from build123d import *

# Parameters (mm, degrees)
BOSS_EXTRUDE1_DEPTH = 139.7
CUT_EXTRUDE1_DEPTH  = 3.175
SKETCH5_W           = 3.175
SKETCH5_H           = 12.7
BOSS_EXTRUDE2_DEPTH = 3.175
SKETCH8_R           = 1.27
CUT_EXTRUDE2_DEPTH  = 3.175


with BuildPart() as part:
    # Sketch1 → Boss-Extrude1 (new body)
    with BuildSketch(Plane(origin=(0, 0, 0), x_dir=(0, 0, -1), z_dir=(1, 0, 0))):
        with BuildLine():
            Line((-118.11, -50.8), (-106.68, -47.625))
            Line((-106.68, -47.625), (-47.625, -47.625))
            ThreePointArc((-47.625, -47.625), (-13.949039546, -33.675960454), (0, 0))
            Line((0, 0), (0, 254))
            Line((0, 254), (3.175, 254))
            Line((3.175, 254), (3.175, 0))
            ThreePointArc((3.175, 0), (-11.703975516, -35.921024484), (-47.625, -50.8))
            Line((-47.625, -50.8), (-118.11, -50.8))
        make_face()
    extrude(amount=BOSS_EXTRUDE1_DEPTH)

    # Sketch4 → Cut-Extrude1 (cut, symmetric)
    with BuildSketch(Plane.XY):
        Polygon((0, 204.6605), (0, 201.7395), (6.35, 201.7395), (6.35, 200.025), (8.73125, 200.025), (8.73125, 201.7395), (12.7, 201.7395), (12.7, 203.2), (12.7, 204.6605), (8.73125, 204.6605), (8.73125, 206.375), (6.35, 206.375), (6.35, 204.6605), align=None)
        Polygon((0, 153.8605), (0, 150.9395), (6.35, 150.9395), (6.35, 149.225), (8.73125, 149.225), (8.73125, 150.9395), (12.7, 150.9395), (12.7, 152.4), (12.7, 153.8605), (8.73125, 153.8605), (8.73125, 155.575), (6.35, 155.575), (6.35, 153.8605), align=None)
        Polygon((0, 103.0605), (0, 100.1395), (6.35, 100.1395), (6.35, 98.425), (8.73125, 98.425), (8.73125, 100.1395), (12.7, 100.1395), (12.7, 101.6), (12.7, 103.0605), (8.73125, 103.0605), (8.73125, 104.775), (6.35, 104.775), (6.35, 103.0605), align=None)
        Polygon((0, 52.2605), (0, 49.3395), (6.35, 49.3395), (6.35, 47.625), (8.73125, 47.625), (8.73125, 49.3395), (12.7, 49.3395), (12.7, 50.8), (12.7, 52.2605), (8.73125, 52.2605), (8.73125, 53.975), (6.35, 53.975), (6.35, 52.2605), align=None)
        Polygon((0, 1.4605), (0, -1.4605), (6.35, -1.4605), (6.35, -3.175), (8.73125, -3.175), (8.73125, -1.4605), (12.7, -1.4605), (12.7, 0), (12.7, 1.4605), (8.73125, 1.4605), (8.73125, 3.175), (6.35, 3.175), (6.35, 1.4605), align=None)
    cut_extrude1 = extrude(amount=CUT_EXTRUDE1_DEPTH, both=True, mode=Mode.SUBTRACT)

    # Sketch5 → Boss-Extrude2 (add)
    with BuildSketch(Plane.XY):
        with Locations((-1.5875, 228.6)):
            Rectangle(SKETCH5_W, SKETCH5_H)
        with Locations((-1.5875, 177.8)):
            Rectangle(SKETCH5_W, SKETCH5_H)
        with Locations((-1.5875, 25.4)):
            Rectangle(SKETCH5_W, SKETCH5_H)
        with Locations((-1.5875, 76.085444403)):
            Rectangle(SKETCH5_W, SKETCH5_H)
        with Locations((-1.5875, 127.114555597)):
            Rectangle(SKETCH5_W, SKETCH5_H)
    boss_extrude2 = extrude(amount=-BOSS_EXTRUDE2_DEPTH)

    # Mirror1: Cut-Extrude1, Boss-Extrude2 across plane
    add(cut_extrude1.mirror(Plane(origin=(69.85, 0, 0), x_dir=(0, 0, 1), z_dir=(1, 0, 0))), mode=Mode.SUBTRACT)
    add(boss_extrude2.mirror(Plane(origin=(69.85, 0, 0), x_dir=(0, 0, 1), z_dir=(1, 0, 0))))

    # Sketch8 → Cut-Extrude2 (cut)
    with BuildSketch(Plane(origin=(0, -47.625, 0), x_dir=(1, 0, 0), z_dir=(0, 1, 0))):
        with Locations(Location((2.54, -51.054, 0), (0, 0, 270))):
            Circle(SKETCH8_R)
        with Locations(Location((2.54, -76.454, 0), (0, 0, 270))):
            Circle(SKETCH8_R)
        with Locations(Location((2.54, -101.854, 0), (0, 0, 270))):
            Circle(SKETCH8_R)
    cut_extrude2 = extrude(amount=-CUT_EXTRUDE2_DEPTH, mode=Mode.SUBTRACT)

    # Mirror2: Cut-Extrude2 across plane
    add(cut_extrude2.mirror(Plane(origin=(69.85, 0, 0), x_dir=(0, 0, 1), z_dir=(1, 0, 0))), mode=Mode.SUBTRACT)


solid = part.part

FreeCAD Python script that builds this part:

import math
import FreeCAD as App
import Part
import Sketcher
from FreeCAD import Vector
Q = App.Units.Quantity

doc = App.newDocument("Part")
params = doc.addObject("Spreadsheet::Sheet", "Params")
for row, (alias, value) in enumerate([
    ("sketch1_radius", "2 in"),
    ("sketch1_width", "10 in"),
    ("sketch1_radius2", "1.875 in"),
    ("sketch1_height", "2.775 in"),
    ("pad1_length", "5.5 in"),
    ("sketch2_width", "0.25 in"),
    ("sketch2_width2", "0.09375 in"),
    ("sketch2_height", "0.115 in"),
    ("pocket1_length", "0.25 in"),
    ("sketch3_height", "0.5 in"),
    ("sketch3_width", "0.125 in"),
    ("pad2_length", "0.125 in"),
    ("sketch4_diameter", "0.1 in"),
    ("pocket2_length", "0.125 in"),
], start=1):
    params.set(f"A{row}", alias)
    params.set(f"B{row}", "=" + value)
    params.setAlias(f"B{row}", alias)

body = doc.addObject("PartDesign::Body", "Body")

# Sketch on YZ plane
sketch1 = body.newObject("Sketcher::SketchObject", "Sketch")
sketch1.AttachmentSupport = (doc.getObject("YZ_Plane"), [""])
sketch1.MapMode = "FlatFace"
sketch1.addGeometry(Part.LineSegment(Vector(-47.625, 106.68, 0), Vector(-50.8, 118.11, 0)), False)
sketch1.addGeometry(Part.LineSegment(Vector(-50.8, 118.11, 0), Vector(-50.8, 47.625, 0)), False)
sketch1.addGeometry(Part.ArcOfCircle(Part.Circle(Vector(0, 47.625, 0), Vector(0, 0, 1), 50.8), math.radians(-180), math.radians(-90)), False)
sketch1.addGeometry(Part.LineSegment(Vector(0, -3.175, 0), Vector(254, -3.175, 0)), False)
sketch1.addGeometry(Part.LineSegment(Vector(254, -3.175, 0), Vector(254, 0, 0)), False)
sketch1.addGeometry(Part.LineSegment(Vector(254, 0, 0), Vector(0, 0, 0)), False)
sketch1.addGeometry(Part.ArcOfCircle(Part.Circle(Vector(0, 47.625, 0), Vector(0, 0, 1), 47.625), math.radians(180), math.radians(270)), False)
sketch1.addGeometry(Part.LineSegment(Vector(-47.625, 47.625, 0), Vector(-47.625, 106.68, 0)), False)
sketch1.addConstraint(Sketcher.Constraint("Coincident", 0, 2, 1, 1))
sketch1.addConstraint(Sketcher.Constraint("Tangent", 1, 2, 2, 1))
sketch1.addConstraint(Sketcher.Constraint("Tangent", 2, 2, 3, 1))
sketch1.addConstraint(Sketcher.Constraint("Coincident", 3, 2, 4, 1))
sketch1.addConstraint(Sketcher.Constraint("Coincident", 4, 2, 5, 1))
sketch1.addConstraint(Sketcher.Constraint("Tangent", 5, 2, 6, 2))
sketch1.addConstraint(Sketcher.Constraint("Tangent", 6, 1, 7, 1))
sketch1.addConstraint(Sketcher.Constraint("Coincident", 7, 2, 0, 1))
sketch1.addConstraint(Sketcher.Constraint("Vertical", 1))
sketch1.addConstraint(Sketcher.Constraint("Horizontal", 3))
sketch1.addConstraint(Sketcher.Constraint("Vertical", 4))
sketch1.addConstraint(Sketcher.Constraint("Horizontal", 5))
sketch1.addConstraint(Sketcher.Constraint("Vertical", 7))
sketch1.addConstraint(Sketcher.Constraint("Coincident", 5, 2, -1, 1))
sketch1.addConstraint(Sketcher.Constraint("Coincident", 6, 3, 2, 3))
sketch1.addConstraint(Sketcher.Constraint("Radius", 2, Q("2 in")))
sketch1.addConstraint(Sketcher.Constraint("DistanceX", 3, 1, 3, 2, Q("10 in")))
sketch1.addConstraint(Sketcher.Constraint("Radius", 6, Q("1.875 in")))
sketch1.addConstraint(Sketcher.Constraint("DistanceY", -1, 1, 7, 2, Q("4.2 in")))
sketch1.addConstraint(Sketcher.Constraint("DistanceY", 1, 2, 1, 1, Q("2.775 in")))
sketch1.setExpression("Constraints[15]", "Params.sketch1_radius")
sketch1.setExpression("Constraints[16]", "Params.sketch1_width")
sketch1.setExpression("Constraints[17]", "Params.sketch1_radius2")
sketch1.setExpression("Constraints[19]", "Params.sketch1_height")
pad1 = body.newObject("PartDesign::Pad", "Pad")
pad1.Profile = sketch1
pad1.setExpression("Length", "Params.pad1_length")

# Sketch on XY plane
sketch2 = body.newObject("Sketcher::SketchObject", "Sketch001")
sketch2.AttachmentSupport = (doc.getObject("XY_Plane"), [""])
sketch2.MapMode = "FlatFace"
sketch2.addGeometry(Part.LineSegment(Vector(0, 204.6605, 0), Vector(0, 201.7395, 0)), False)
sketch2.addGeometry(Part.LineSegment(Vector(0, 201.7395, 0), Vector(6.35, 201.7395, 0)), False)
sketch2.addGeometry(Part.LineSegment(Vector(6.35, 201.7395, 0), Vector(6.35, 200.025, 0)), False)
sketch2.addGeometry(Part.LineSegment(Vector(6.35, 200.025, 0), Vector(8.73125, 200.025, 0)), False)
sketch2.addGeometry(Part.LineSegment(Vector(8.73125, 200.025, 0), Vector(8.73125, 201.7395, 0)), False)
sketch2.addGeometry(Part.LineSegment(Vector(8.73125, 201.7395, 0), Vector(12.7, 201.7395, 0)), False)
sketch2.addGeometry(Part.LineSegment(Vector(12.7, 201.7395, 0), Vector(12.7, 204.6605, 0)), False)
sketch2.addGeometry(Part.LineSegment(Vector(12.7, 204.6605, 0), Vector(8.73125, 204.6605, 0)), False)
sketch2.addGeometry(Part.LineSegment(Vector(8.73125, 204.6605, 0), Vector(8.73125, 206.375, 0)), False)
sketch2.addGeometry(Part.LineSegment(Vector(8.73125, 206.375, 0), Vector(6.35, 206.375, 0)), False)
sketch2.addGeometry(Part.LineSegment(Vector(6.35, 206.375, 0), Vector(6.35, 204.6605, 0)), False)
sketch2.addGeometry(Part.LineSegment(Vector(6.35, 204.6605, 0), Vector(0, 204.6605, 0)), False)
sketch2.addGeometry(Part.LineSegment(Vector(0, 153.8605, 0), Vector(0, 150.9395, 0)), False)
sketch2.addGeometry(Part.LineSegment(Vector(0, 150.9395, 0), Vector(6.35, 150.9395, 0)), False)
sketch2.addGeometry(Part.LineSegment(Vector(6.35, 150.9395, 0), Vector(6.35, 149.225, 0)), False)
sketch2.addGeometry(Part.LineSegment(Vector(6.35, 149.225, 0), Vector(8.73125, 149.225, 0)), False)
sketch2.addGeometry(Part.LineSegment(Vector(8.73125, 149.225, 0), Vector(8.73125, 150.9395, 0)), False)
sketch2.addGeometry(Part.LineSegment(Vector(8.73125, 150.9395, 0), Vector(12.7, 150.9395, 0)), False)
sketch2.addGeometry(Part.LineSegment(Vector(12.7, 150.9395, 0), Vector(12.7, 153.8605, 0)), False)
sketch2.addGeometry(Part.LineSegment(Vector(12.7, 153.8605, 0), Vector(8.73125, 153.8605, 0)), False)
sketch2.addGeometry(Part.LineSegment(Vector(8.73125, 153.8605, 0), Vector(8.73125, 155.575, 0)), False)
sketch2.addGeometry(Part.LineSegment(Vector(8.73125, 155.575, 0), Vector(6.35, 155.575, 0)), False)
sketch2.addGeometry(Part.LineSegment(Vector(6.35, 155.575, 0), Vector(6.35, 153.8605, 0)), False)
sketch2.addGeometry(Part.LineSegment(Vector(6.35, 153.8605, 0), Vector(0, 153.8605, 0)), False)
sketch2.addGeometry(Part.LineSegment(Vector(0, 103.0605, 0), Vector(0, 100.1395, 0)), False)
sketch2.addGeometry(Part.LineSegment(Vector(0, 100.1395, 0), Vector(6.35, 100.1395, 0)), False)
sketch2.addGeometry(Part.LineSegment(Vector(6.35, 100.1395, 0), Vector(6.35, 98.425, 0)), False)
sketch2.addGeometry(Part.LineSegment(Vector(6.35, 98.425, 0), Vector(8.73125, 98.425, 0)), False)
sketch2.addGeometry(Part.LineSegment(Vector(8.73125, 98.425, 0), Vector(8.73125, 100.1395, 0)), False)
sketch2.addGeometry(Part.LineSegment(Vector(8.73125, 100.1395, 0), Vector(12.7, 100.1395, 0)), False)
sketch2.addGeometry(Part.LineSegment(Vector(12.7, 100.1395, 0), Vector(12.7, 103.0605, 0)), False)
sketch2.addGeometry(Part.LineSegment(Vector(12.7, 103.0605, 0), Vector(8.73125, 103.0605, 0)), False)
sketch2.addGeometry(Part.LineSegment(Vector(8.73125, 103.0605, 0), Vector(8.73125, 104.775, 0)), False)
sketch2.addGeometry(Part.LineSegment(Vector(8.73125, 104.775, 0), Vector(6.35, 104.775, 0)), False)
sketch2.addGeometry(Part.LineSegment(Vector(6.35, 104.775, 0), Vector(6.35, 103.0605, 0)), False)
sketch2.addGeometry(Part.LineSegment(Vector(6.35, 103.0605, 0), Vector(0, 103.0605, 0)), False)
sketch2.addGeometry(Part.LineSegment(Vector(0, 52.2605, 0), Vector(0, 49.3395, 0)), False)
sketch2.addGeometry(Part.LineSegment(Vector(0, 49.3395, 0), Vector(6.35, 49.3395, 0)), False)
sketch2.addGeometry(Part.LineSegment(Vector(6.35, 49.3395, 0), Vector(6.35, 47.625, 0)), False)
sketch2.addGeometry(Part.LineSegment(Vector(6.35, 47.625, 0), Vector(8.73125, 47.625, 0)), False)
sketch2.addGeometry(Part.LineSegment(Vector(8.73125, 47.625, 0), Vector(8.73125, 49.3395, 0)), False)
sketch2.addGeometry(Part.LineSegment(Vector(8.73125, 49.3395, 0), Vector(12.7, 49.3395, 0)), False)
sketch2.addGeometry(Part.LineSegment(Vector(12.7, 49.3395, 0), Vector(12.7, 52.2605, 0)), False)
sketch2.addGeometry(Part.LineSegment(Vector(12.7, 52.2605, 0), Vector(8.73125, 52.2605, 0)), False)
sketch2.addGeometry(Part.LineSegment(Vector(8.73125, 52.2605, 0), Vector(8.73125, 53.975, 0)), False)
sketch2.addGeometry(Part.LineSegment(Vector(8.73125, 53.975, 0), Vector(6.35, 53.975, 0)), False)
sketch2.addGeometry(Part.LineSegment(Vector(6.35, 53.975, 0), Vector(6.35, 52.2605, 0)), False)
sketch2.addGeometry(Part.LineSegment(Vector(6.35, 52.2605, 0), Vector(0, 52.2605, 0)), False)
sketch2.addGeometry(Part.LineSegment(Vector(0, 1.4605, 0), Vector(0, -1.4605, 0)), False)
sketch2.addGeometry(Part.LineSegment(Vector(0, -1.4605, 0), Vector(6.35, -1.4605, 0)), False)
sketch2.addGeometry(Part.LineSegment(Vector(6.35, -1.4605, 0), Vector(6.35, -3.175, 0)), False)
sketch2.addGeometry(Part.LineSegment(Vector(6.35, -3.175, 0), Vector(8.73125, -3.175, 0)), False)
sketch2.addGeometry(Part.LineSegment(Vector(8.73125, -3.175, 0), Vector(8.73125, -1.4605, 0)), False)
sketch2.addGeometry(Part.LineSegment(Vector(8.73125, -1.4605, 0), Vector(12.7, -1.4605, 0)), False)
sketch2.addGeometry(Part.LineSegment(Vector(12.7, -1.4605, 0), Vector(12.7, 1.4605, 0)), False)
sketch2.addGeometry(Part.LineSegment(Vector(12.7, 1.4605, 0), Vector(8.73125, 1.4605, 0)), False)
sketch2.addGeometry(Part.LineSegment(Vector(8.73125, 1.4605, 0), Vector(8.73125, 3.175, 0)), False)
sketch2.addGeometry(Part.LineSegment(Vector(8.73125, 3.175, 0), Vector(6.35, 3.175, 0)), False)
sketch2.addGeometry(Part.LineSegment(Vector(6.35, 3.175, 0), Vector(6.35, 1.4605, 0)), False)
sketch2.addGeometry(Part.LineSegment(Vector(6.35, 1.4605, 0), Vector(0, 1.4605, 0)), False)
sketch2.addConstraint(Sketcher.Constraint("Coincident", 0, 2, 1, 1))
sketch2.addConstraint(Sketcher.Constraint("Coincident", 1, 2, 2, 1))
sketch2.addConstraint(Sketcher.Constraint("Coincident", 2, 2, 3, 1))
sketch2.addConstraint(Sketcher.Constraint("Coincident", 3, 2, 4, 1))
sketch2.addConstraint(Sketcher.Constraint("Coincident", 4, 2, 5, 1))
sketch2.addConstraint(Sketcher.Constraint("Coincident", 5, 2, 6, 1))
sketch2.addConstraint(Sketcher.Constraint("Coincident", 6, 2, 7, 1))
sketch2.addConstraint(Sketcher.Constraint("Coincident", 7, 2, 8, 1))
sketch2.addConstraint(Sketcher.Constraint("Coincident", 8, 2, 9, 1))
sketch2.addConstraint(Sketcher.Constraint("Coincident", 9, 2, 10, 1))
sketch2.addConstraint(Sketcher.Constraint("Coincident", 10, 2, 11, 1))
sketch2.addConstraint(Sketcher.Constraint("Coincident", 11, 2, 0, 1))
sketch2.addConstraint(Sketcher.Constraint("Coincident", 12, 2, 13, 1))
sketch2.addConstraint(Sketcher.Constraint("Coincident", 13, 2, 14, 1))
sketch2.addConstraint(Sketcher.Constraint("Coincident", 14, 2, 15, 1))
sketch2.addConstraint(Sketcher.Constraint("Coincident", 15, 2, 16, 1))
sketch2.addConstraint(Sketcher.Constraint("Coincident", 16, 2, 17, 1))
sketch2.addConstraint(Sketcher.Constraint("Coincident", 17, 2, 18, 1))
sketch2.addConstraint(Sketcher.Constraint("Coincident", 18, 2, 19, 1))
sketch2.addConstraint(Sketcher.Constraint("Coincident", 19, 2, 20, 1))
sketch2.addConstraint(Sketcher.Constraint("Coincident", 20, 2, 21, 1))
sketch2.addConstraint(Sketcher.Constraint("Coincident", 21, 2, 22, 1))
sketch2.addConstraint(Sketcher.Constraint("Coincident", 22, 2, 23, 1))
sketch2.addConstraint(Sketcher.Constraint("Coincident", 23, 2, 12, 1))
sketch2.addConstraint(Sketcher.Constraint("Coincident", 24, 2, 25, 1))
sketch2.addConstraint(Sketcher.Constraint("Coincident", 25, 2, 26, 1))
sketch2.addConstraint(Sketcher.Constraint("Coincident", 26, 2, 27, 1))
sketch2.addConstraint(Sketcher.Constraint("Coincident", 27, 2, 28, 1))
sketch2.addConstraint(Sketcher.Constraint("Coincident", 28, 2, 29, 1))
sketch2.addConstraint(Sketcher.Constraint("Coincident", 29, 2, 30, 1))
sketch2.addConstraint(Sketcher.Constraint("Coincident", 30, 2, 31, 1))
sketch2.addConstraint(Sketcher.Constraint("Coincident", 31, 2, 32, 1))
sketch2.addConstraint(Sketcher.Constraint("Coincident", 32, 2, 33, 1))
sketch2.addConstraint(Sketcher.Constraint("Coincident", 33, 2, 34, 1))
sketch2.addConstraint(Sketcher.Constraint("Coincident", 34, 2, 35, 1))
sketch2.addConstraint(Sketcher.Constraint("Coincident", 35, 2, 24, 1))
sketch2.addConstraint(Sketcher.Constraint("Coincident", 36, 2, 37, 1))
sketch2.addConstraint(Sketcher.Constraint("Coincident", 37, 2, 38, 1))
sketch2.addConstraint(Sketcher.Constraint("Coincident", 38, 2, 39, 1))
sketch2.addConstraint(Sketcher.Constraint("Coincident", 39, 2, 40, 1))
sketch2.addConstraint(Sketcher.Constraint("Coincident", 40, 2, 41, 1))
sketch2.addConstraint(Sketcher.Constraint("Coincident", 41, 2, 42, 1))
sketch2.addConstraint(Sketcher.Constraint("Coincident", 42, 2, 43, 1))
sketch2.addConstraint(Sketcher.Constraint("Coincident", 43, 2, 44, 1))
sketch2.addConstraint(Sketcher.Constraint("Coincident", 44, 2, 45, 1))
sketch2.addConstraint(Sketcher.Constraint("Coincident", 45, 2, 46, 1))
sketch2.addConstraint(Sketcher.Constraint("Coincident", 46, 2, 47, 1))
sketch2.addConstraint(Sketcher.Constraint("Coincident", 47, 2, 36, 1))
sketch2.addConstraint(Sketcher.Constraint("Coincident", 48, 2, 49, 1))
sketch2.addConstraint(Sketcher.Constraint("Coincident", 49, 2, 50, 1))
sketch2.addConstraint(Sketcher.Constraint("Coincident", 50, 2, 51, 1))
sketch2.addConstraint(Sketcher.Constraint("Coincident", 51, 2, 52, 1))
sketch2.addConstraint(Sketcher.Constraint("Coincident", 52, 2, 53, 1))
sketch2.addConstraint(Sketcher.Constraint("Coincident", 53, 2, 54, 1))
sketch2.addConstraint(Sketcher.Constraint("Coincident", 54, 2, 55, 1))
sketch2.addConstraint(Sketcher.Constraint("Coincident", 55, 2, 56, 1))
sketch2.addConstraint(Sketcher.Constraint("Coincident", 56, 2, 57, 1))
sketch2.addConstraint(Sketcher.Constraint("Coincident", 57, 2, 58, 1))
sketch2.addConstraint(Sketcher.Constraint("Coincident", 58, 2, 59, 1))
sketch2.addConstraint(Sketcher.Constraint("Coincident", 59, 2, 48, 1))
sketch2.addConstraint(Sketcher.Constraint("Vertical", 0))
sketch2.addConstraint(Sketcher.Constraint("Horizontal", 1))
sketch2.addConstraint(Sketcher.Constraint("Vertical", 2))
sketch2.addConstraint(Sketcher.Constraint("Horizontal", 3))
sketch2.addConstraint(Sketcher.Constraint("Vertical", 4))
sketch2.addConstraint(Sketcher.Constraint("Horizontal", 5))
sketch2.addConstraint(Sketcher.Constraint("Vertical", 6))
sketch2.addConstraint(Sketcher.Constraint("Horizontal", 7))
sketch2.addConstraint(Sketcher.Constraint("Vertical", 8))
sketch2.addConstraint(Sketcher.Constraint("Horizontal", 9))
sketch2.addConstraint(Sketcher.Constraint("Vertical", 10))
sketch2.addConstraint(Sketcher.Constraint("Horizontal", 11))
sketch2.addConstraint(Sketcher.Constraint("Vertical", 12))
sketch2.addConstraint(Sketcher.Constraint("Horizontal", 13))
sketch2.addConstraint(Sketcher.Constraint("Vertical", 14))
sketch2.addConstraint(Sketcher.Constraint("Horizontal", 15))
sketch2.addConstraint(Sketcher.Constraint("Vertical", 16))
sketch2.addConstraint(Sketcher.Constraint("Horizontal", 17))
sketch2.addConstraint(Sketcher.Constraint("Vertical", 18))
sketch2.addConstraint(Sketcher.Constraint("Horizontal", 19))
sketch2.addConstraint(Sketcher.Constraint("Vertical", 20))
sketch2.addConstraint(Sketcher.Constraint("Horizontal", 21))
sketch2.addConstraint(Sketcher.Constraint("Vertical", 22))
sketch2.addConstraint(Sketcher.Constraint("Horizontal", 23))
sketch2.addConstraint(Sketcher.Constraint("Vertical", 24))
sketch2.addConstraint(Sketcher.Constraint("Horizontal", 25))
sketch2.addConstraint(Sketcher.Constraint("Vertical", 26))
sketch2.addConstraint(Sketcher.Constraint("Horizontal", 27))
sketch2.addConstraint(Sketcher.Constraint("Vertical", 28))
sketch2.addConstraint(Sketcher.Constraint("Horizontal", 29))
sketch2.addConstraint(Sketcher.Constraint("Vertical", 30))
sketch2.addConstraint(Sketcher.Constraint("Horizontal", 31))
sketch2.addConstraint(Sketcher.Constraint("Vertical", 32))
sketch2.addConstraint(Sketcher.Constraint("Horizontal", 33))
sketch2.addConstraint(Sketcher.Constraint("Vertical", 34))
sketch2.addConstraint(Sketcher.Constraint("Horizontal", 35))
sketch2.addConstraint(Sketcher.Constraint("Vertical", 36))
sketch2.addConstraint(Sketcher.Constraint("Horizontal", 37))
sketch2.addConstraint(Sketcher.Constraint("Vertical", 38))
sketch2.addConstraint(Sketcher.Constraint("Horizontal", 39))
sketch2.addConstraint(Sketcher.Constraint("Vertical", 40))
sketch2.addConstraint(Sketcher.Constraint("Horizontal", 41))
sketch2.addConstraint(Sketcher.Constraint("Vertical", 42))
sketch2.addConstraint(Sketcher.Constraint("Horizontal", 43))
sketch2.addConstraint(Sketcher.Constraint("Vertical", 44))
sketch2.addConstraint(Sketcher.Constraint("Horizontal", 45))
sketch2.addConstraint(Sketcher.Constraint("Vertical", 46))
sketch2.addConstraint(Sketcher.Constraint("Horizontal", 47))
sketch2.addConstraint(Sketcher.Constraint("Vertical", 48))
sketch2.addConstraint(Sketcher.Constraint("Horizontal", 49))
sketch2.addConstraint(Sketcher.Constraint("Vertical", 50))
sketch2.addConstraint(Sketcher.Constraint("Horizontal", 51))
sketch2.addConstraint(Sketcher.Constraint("Vertical", 52))
sketch2.addConstraint(Sketcher.Constraint("Horizontal", 53))
sketch2.addConstraint(Sketcher.Constraint("Vertical", 54))
sketch2.addConstraint(Sketcher.Constraint("Horizontal", 55))
sketch2.addConstraint(Sketcher.Constraint("Vertical", 56))
sketch2.addConstraint(Sketcher.Constraint("Horizontal", 57))
sketch2.addConstraint(Sketcher.Constraint("Vertical", 58))
sketch2.addConstraint(Sketcher.Constraint("Horizontal", 59))
sketch2.addConstraint(Sketcher.Constraint("Symmetric", 48, 2, 59, 2, -1, 1))
sketch2.addConstraint(Sketcher.Constraint("Symmetric", 52, 2, 55, 2, -1))
sketch2.addConstraint(Sketcher.Constraint("Symmetric", 50, 2, 57, 2, -1))
sketch2.addConstraint(Sketcher.Constraint("PointOnObject", 0, 2, -2))
sketch2.addConstraint(Sketcher.Constraint("PointOnObject", 12, 2, -2))
sketch2.addConstraint(Sketcher.Constraint("PointOnObject", 24, 2, -2))
sketch2.addConstraint(Sketcher.Constraint("PointOnObject", 36, 2, -2))
sketch2.addConstraint(Sketcher.Constraint("Horizontal", 1, 2, 4, 2))
sketch2.addConstraint(Sketcher.Constraint("Horizontal", 7, 2, 10, 2))
sketch2.addConstraint(Sketcher.Constraint("Horizontal", 13, 2, 16, 2))
sketch2.addConstraint(Sketcher.Constraint("Horizontal", 19, 2, 22, 2))
sketch2.addConstraint(Sketcher.Constraint("Horizontal", 25, 2, 28, 2))
sketch2.addConstraint(Sketcher.Constraint("Horizontal", 31, 2, 34, 2))
sketch2.addConstraint(Sketcher.Constraint("Horizontal", 37, 2, 40, 2))
sketch2.addConstraint(Sketcher.Constraint("Horizontal", 43, 2, 46, 2))
sketch2.addConstraint(Sketcher.Constraint("Horizontal", 49, 2, 52, 2))
sketch2.addConstraint(Sketcher.Constraint("Vertical", 4, 2, 7, 2))
sketch2.addConstraint(Sketcher.Constraint("Vertical", 2, 2, 9, 2))
sketch2.addConstraint(Sketcher.Constraint("Vertical", 10, 2, 13, 2))
sketch2.addConstraint(Sketcher.Constraint("Vertical", 8, 2, 15, 2))
sketch2.addConstraint(Sketcher.Constraint("Vertical", 6, 2, 17, 2))
sketch2.addConstraint(Sketcher.Constraint("Vertical", 16, 2, 19, 2))
sketch2.addConstraint(Sketcher.Constraint("Vertical", 14, 2, 21, 2))
sketch2.addConstraint(Sketcher.Constraint("Vertical", 22, 2, 25, 2))
sketch2.addConstraint(Sketcher.Constraint("Vertical", 20, 2, 27, 2))
sketch2.addConstraint(Sketcher.Constraint("Vertical", 18, 2, 29, 2))
sketch2.addConstraint(Sketcher.Constraint("Vertical", 28, 2, 31, 2))
sketch2.addConstraint(Sketcher.Constraint("Vertical", 26, 2, 33, 2))
sketch2.addConstraint(Sketcher.Constraint("Vertical", 34, 2, 37, 2))
sketch2.addConstraint(Sketcher.Constraint("Vertical", 32, 2, 39, 2))
sketch2.addConstraint(Sketcher.Constraint("Vertical", 30, 2, 41, 2))
sketch2.addConstraint(Sketcher.Constraint("Vertical", 40, 2, 43, 2))
sketch2.addConstraint(Sketcher.Constraint("Vertical", 38, 2, 45, 2))
sketch2.addConstraint(Sketcher.Constraint("Vertical", 46, 2, 49, 2))
sketch2.addConstraint(Sketcher.Constraint("Vertical", 44, 2, 51, 2))
sketch2.addConstraint(Sketcher.Constraint("Vertical", 42, 2, 53, 2))
sketch2.addConstraint(Sketcher.Constraint("Equal", 4, 8))
sketch2.addConstraint(Sketcher.Constraint("Equal", 6, 12))
sketch2.addConstraint(Sketcher.Constraint("Equal", 10, 14))
sketch2.addConstraint(Sketcher.Constraint("Equal", 16, 20))
sketch2.addConstraint(Sketcher.Constraint("Equal", 18, 24))
sketch2.addConstraint(Sketcher.Constraint("Equal", 22, 26))
sketch2.addConstraint(Sketcher.Constraint("Equal", 28, 32))
sketch2.addConstraint(Sketcher.Constraint("Equal", 30, 36))
sketch2.addConstraint(Sketcher.Constraint("Equal", 34, 38))
sketch2.addConstraint(Sketcher.Constraint("Equal", 40, 44))
sketch2.addConstraint(Sketcher.Constraint("Equal", 42, 48))
sketch2.addConstraint(Sketcher.Constraint("Equal", 46, 50))
sketch2.addConstraint(Sketcher.Constraint("DistanceY", 12, 2, 0, 2, Q("2 in")))
sketch2.addConstraint(Sketcher.Constraint("DistanceY", 24, 2, 12, 2, Q("2 in")))
sketch2.addConstraint(Sketcher.Constraint("DistanceY", 36, 2, 24, 2, Q("2 in")))
sketch2.addConstraint(Sketcher.Constraint("DistanceY", 48, 2, 36, 2, Q("2 in")))
sketch2.addConstraint(Sketcher.Constraint("DistanceX", 1, 1, 1, 2, Q("0.25 in")))
sketch2.addConstraint(Sketcher.Constraint("DistanceX", -1, 1, 5, 2, Q("0.5 in")))
sketch2.addConstraint(Sketcher.Constraint("DistanceX", 3, 1, 3, 2, Q("0.09375 in")))
sketch2.addConstraint(Sketcher.Constraint("DistanceY", 0, 2, 0, 1, Q("0.115 in")))
sketch2.addConstraint(Sketcher.Constraint("DistanceY", 2, 2, 9, 2, Q("0.25 in")))
sketch2.setExpression("Constraints[172]", "Params.sketch2_width")
sketch2.setExpression("Constraints[174]", "Params.sketch2_width2")
sketch2.setExpression("Constraints[175]", "Params.sketch2_height")
pocket1 = body.newObject("PartDesign::Pocket", "Pocket")
pocket1.Profile = sketch2
pocket1.setExpression("Length", "Params.pocket1_length")
pocket1.Midplane = True

# Sketch on XY plane
sketch3 = body.newObject("Sketcher::SketchObject", "Sketch002")
sketch3.AttachmentSupport = (doc.getObject("XY_Plane"), [""])
sketch3.MapMode = "FlatFace"
sketch3.addGeometry(Part.LineSegment(Vector(-3.175, 234.95, 0), Vector(-3.175, 222.25, 0)), False)
sketch3.addGeometry(Part.LineSegment(Vector(-3.175, 222.25, 0), Vector(0, 222.25, 0)), False)
sketch3.addGeometry(Part.LineSegment(Vector(0, 222.25, 0), Vector(0, 234.95, 0)), False)
sketch3.addGeometry(Part.LineSegment(Vector(0, 234.95, 0), Vector(-3.175, 234.95, 0)), False)
sketch3.addGeometry(Part.LineSegment(Vector(-3.175, 184.15, 0), Vector(-3.175, 171.45, 0)), False)
sketch3.addGeometry(Part.LineSegment(Vector(-3.175, 171.45, 0), Vector(0, 171.45, 0)), False)
sketch3.addGeometry(Part.LineSegment(Vector(0, 171.45, 0), Vector(0, 184.15, 0)), False)
sketch3.addGeometry(Part.LineSegment(Vector(0, 184.15, 0), Vector(-3.175, 184.15, 0)), False)
sketch3.addGeometry(Part.LineSegment(Vector(-3.175, 31.75, 0), Vector(-3.175, 19.05, 0)), False)
sketch3.addGeometry(Part.LineSegment(Vector(-3.175, 19.05, 0), Vector(0, 19.05, 0)), False)
sketch3.addGeometry(Part.LineSegment(Vector(0, 19.05, 0), Vector(0, 31.75, 0)), False)
sketch3.addGeometry(Part.LineSegment(Vector(0, 31.75, 0), Vector(-3.175, 31.75, 0)), False)
sketch3.addGeometry(Part.LineSegment(Vector(-3.175, 82.435444, 0), Vector(-3.175, 69.735444, 0)), False)
sketch3.addGeometry(Part.LineSegment(Vector(-3.175, 69.735444, 0), Vector(0, 69.735444, 0)), False)
sketch3.addGeometry(Part.LineSegment(Vector(0, 69.735444, 0), Vector(0, 82.435444, 0)), False)
sketch3.addGeometry(Part.LineSegment(Vector(0, 82.435444, 0), Vector(-3.175, 82.435444, 0)), False)
sketch3.addGeometry(Part.LineSegment(Vector(-3.175, 133.464556, 0), Vector(-3.175, 120.764556, 0)), False)
sketch3.addGeometry(Part.LineSegment(Vector(-3.175, 120.764556, 0), Vector(0, 120.764556, 0)), False)
sketch3.addGeometry(Part.LineSegment(Vector(0, 120.764556, 0), Vector(0, 133.464556, 0)), False)
sketch3.addGeometry(Part.LineSegment(Vector(0, 133.464556, 0), Vector(-3.175, 133.464556, 0)), False)
sketch3.addConstraint(Sketcher.Constraint("Coincident", 0, 2, 1, 1))
sketch3.addConstraint(Sketcher.Constraint("Coincident", 1, 2, 2, 1))
sketch3.addConstraint(Sketcher.Constraint("Coincident", 2, 2, 3, 1))
sketch3.addConstraint(Sketcher.Constraint("Coincident", 3, 2, 0, 1))
sketch3.addConstraint(Sketcher.Constraint("Coincident", 4, 2, 5, 1))
sketch3.addConstraint(Sketcher.Constraint("Coincident", 5, 2, 6, 1))
sketch3.addConstraint(Sketcher.Constraint("Coincident", 6, 2, 7, 1))
sketch3.addConstraint(Sketcher.Constraint("Coincident", 7, 2, 4, 1))
sketch3.addConstraint(Sketcher.Constraint("Coincident", 8, 2, 9, 1))
sketch3.addConstraint(Sketcher.Constraint("Coincident", 9, 2, 10, 1))
sketch3.addConstraint(Sketcher.Constraint("Coincident", 10, 2, 11, 1))
sketch3.addConstraint(Sketcher.Constraint("Coincident", 11, 2, 8, 1))
sketch3.addConstraint(Sketcher.Constraint("Coincident", 12, 2, 13, 1))
sketch3.addConstraint(Sketcher.Constraint("Coincident", 13, 2, 14, 1))
sketch3.addConstraint(Sketcher.Constraint("Coincident", 14, 2, 15, 1))
sketch3.addConstraint(Sketcher.Constraint("Coincident", 15, 2, 12, 1))
sketch3.addConstraint(Sketcher.Constraint("Coincident", 16, 2, 17, 1))
sketch3.addConstraint(Sketcher.Constraint("Coincident", 17, 2, 18, 1))
sketch3.addConstraint(Sketcher.Constraint("Coincident", 18, 2, 19, 1))
sketch3.addConstraint(Sketcher.Constraint("Coincident", 19, 2, 16, 1))
sketch3.addConstraint(Sketcher.Constraint("Vertical", 0))
sketch3.addConstraint(Sketcher.Constraint("Horizontal", 1))
sketch3.addConstraint(Sketcher.Constraint("Vertical", 2))
sketch3.addConstraint(Sketcher.Constraint("Horizontal", 3))
sketch3.addConstraint(Sketcher.Constraint("Vertical", 4))
sketch3.addConstraint(Sketcher.Constraint("Horizontal", 5))
sketch3.addConstraint(Sketcher.Constraint("Vertical", 6))
sketch3.addConstraint(Sketcher.Constraint("Horizontal", 7))
sketch3.addConstraint(Sketcher.Constraint("Vertical", 8))
sketch3.addConstraint(Sketcher.Constraint("Horizontal", 9))
sketch3.addConstraint(Sketcher.Constraint("Vertical", 10))
sketch3.addConstraint(Sketcher.Constraint("Horizontal", 11))
sketch3.addConstraint(Sketcher.Constraint("Vertical", 12))
sketch3.addConstraint(Sketcher.Constraint("Horizontal", 13))
sketch3.addConstraint(Sketcher.Constraint("Vertical", 14))
sketch3.addConstraint(Sketcher.Constraint("Horizontal", 15))
sketch3.addConstraint(Sketcher.Constraint("Vertical", 16))
sketch3.addConstraint(Sketcher.Constraint("Horizontal", 17))
sketch3.addConstraint(Sketcher.Constraint("Vertical", 18))
sketch3.addConstraint(Sketcher.Constraint("Horizontal", 19))
sketch3.addConstraint(Sketcher.Constraint("PointOnObject", 1, 2, -2))
sketch3.addConstraint(Sketcher.Constraint("PointOnObject", 5, 2, -2))
sketch3.addConstraint(Sketcher.Constraint("PointOnObject", 9, 2, -2))
sketch3.addConstraint(Sketcher.Constraint("PointOnObject", 13, 2, -2))
sketch3.addConstraint(Sketcher.Constraint("PointOnObject", 17, 2, -2))
sketch3.addConstraint(Sketcher.Constraint("Vertical", 3, 2, 4, 2))
sketch3.addConstraint(Sketcher.Constraint("Vertical", 7, 2, 8, 2))
sketch3.addConstraint(Sketcher.Constraint("Vertical", 11, 2, 12, 2))
sketch3.addConstraint(Sketcher.Constraint("Vertical", 15, 2, 16, 2))
sketch3.addConstraint(Sketcher.Constraint("Equal", 2, 4))
sketch3.addConstraint(Sketcher.Constraint("Equal", 6, 8))
sketch3.addConstraint(Sketcher.Constraint("Equal", 10, 12))
sketch3.addConstraint(Sketcher.Constraint("Equal", 14, 16))
sketch3.addConstraint(Sketcher.Constraint("DistanceY", 0, 2, 0, 1, Q("0.5 in")))
sketch3.addConstraint(Sketcher.Constraint("DistanceY", 4, 2, 0, 2, Q("2 in")))
sketch3.addConstraint(Sketcher.Constraint("DistanceY", 8, 2, 4, 2, Q("6 in")))
sketch3.addConstraint(Sketcher.Constraint("DistanceX", 1, 1, 1, 2, Q("0.125 in")))
sketch3.addConstraint(Sketcher.Constraint("DistanceY", -1, 1, 0, 2, Q("8.75 in")))
sketch3.addConstraint(Sketcher.Constraint("DistanceY", 15, 2, 16, 2, 38.329111))
sketch3.addConstraint(Sketcher.Constraint("DistanceY", -1, 1, 12, 2, 69.735444))
sketch3.setExpression("Constraints[53]", "Params.sketch3_height")
sketch3.setExpression("Constraints[56]", "Params.sketch3_width")
pad2 = body.newObject("PartDesign::Pad", "Pad001")
pad2.Profile = sketch3
pad2.setExpression("Length", "Params.pad2_length")
pad2.Reversed = True
doc.recompute()

datumplane = body.newObject("PartDesign::Plane", "DatumPlane")
datumplane.AttachmentSupport = (doc.getObject("YZ_Plane"), [""])
datumplane.MapMode = "FlatFace"
datumplane.AttachmentOffset = App.Placement(Vector(0, 0, 2.75 * 25.4), App.Rotation())
mirrored = body.newObject("PartDesign::Mirrored", "Mirrored")
mirrored.Originals = [pocket1, pad2]
mirrored.MirrorPlane = (datumplane, [""])
body.Tip = mirrored

# Sketch on XZ plane
sketch4 = body.newObject("Sketcher::SketchObject", "Sketch003")
sketch4.AttachmentSupport = (doc.getObject("XZ_Plane"), [""])
sketch4.MapMode = "FlatFace"
sketch4.AttachmentOffset = App.Placement(Vector(0, 0, 1.875 * 25.4), App.Rotation())
sketch4.addGeometry(Part.Circle(Vector(2.54, 51.054, 0), Vector(0, 0, 1), 1.27), False)
sketch4.addGeometry(Part.Circle(Vector(2.54, 76.454, 0), Vector(0, 0, 1), 1.27), False)
sketch4.addGeometry(Part.Circle(Vector(2.54, 101.854, 0), Vector(0, 0, 1), 1.27), False)
sketch4.addConstraint(Sketcher.Constraint("Equal", 0, 1))
sketch4.addConstraint(Sketcher.Constraint("Equal", 1, 2))
sketch4.addConstraint(Sketcher.Constraint("Vertical", 0, 3, 1, 3))
sketch4.addConstraint(Sketcher.Constraint("Vertical", 1, 3, 2, 3))
sketch4.addConstraint(Sketcher.Constraint("Diameter", 0, Q("0.1 in")))
sketch4.addConstraint(Sketcher.Constraint("DistanceY", 0, 3, 1, 3, Q("1 in")))
sketch4.addConstraint(Sketcher.Constraint("DistanceY", 1, 3, 2, 3, Q("1 in")))
sketch4.addConstraint(Sketcher.Constraint("DistanceX", -1, 1, 0, 3, Q("0.1 in")))
sketch4.addConstraint(Sketcher.Constraint("DistanceY", -1, 1, 0, 3, Q("2.01 in")))
sketch4.setExpression("Constraints[4]", "Params.sketch4_diameter")
pocket2 = body.newObject("PartDesign::Pocket", "Pocket001")
pocket2.Profile = sketch4
pocket2.setExpression("Length", "Params.pocket2_length")
pocket2.Reversed = True
doc.recompute()

datumplane2 = body.newObject("PartDesign::Plane", "DatumPlane001")
datumplane2.AttachmentSupport = (doc.getObject("YZ_Plane"), [""])
datumplane2.MapMode = "FlatFace"
datumplane2.AttachmentOffset = App.Placement(Vector(0, 0, 2.75 * 25.4), App.Rotation())
mirrored2 = body.newObject("PartDesign::Mirrored", "Mirrored001")
mirrored2.Originals = [pocket2]
mirrored2.MirrorPlane = (datumplane2, [""])
body.Tip = mirrored2

doc.recompute()
